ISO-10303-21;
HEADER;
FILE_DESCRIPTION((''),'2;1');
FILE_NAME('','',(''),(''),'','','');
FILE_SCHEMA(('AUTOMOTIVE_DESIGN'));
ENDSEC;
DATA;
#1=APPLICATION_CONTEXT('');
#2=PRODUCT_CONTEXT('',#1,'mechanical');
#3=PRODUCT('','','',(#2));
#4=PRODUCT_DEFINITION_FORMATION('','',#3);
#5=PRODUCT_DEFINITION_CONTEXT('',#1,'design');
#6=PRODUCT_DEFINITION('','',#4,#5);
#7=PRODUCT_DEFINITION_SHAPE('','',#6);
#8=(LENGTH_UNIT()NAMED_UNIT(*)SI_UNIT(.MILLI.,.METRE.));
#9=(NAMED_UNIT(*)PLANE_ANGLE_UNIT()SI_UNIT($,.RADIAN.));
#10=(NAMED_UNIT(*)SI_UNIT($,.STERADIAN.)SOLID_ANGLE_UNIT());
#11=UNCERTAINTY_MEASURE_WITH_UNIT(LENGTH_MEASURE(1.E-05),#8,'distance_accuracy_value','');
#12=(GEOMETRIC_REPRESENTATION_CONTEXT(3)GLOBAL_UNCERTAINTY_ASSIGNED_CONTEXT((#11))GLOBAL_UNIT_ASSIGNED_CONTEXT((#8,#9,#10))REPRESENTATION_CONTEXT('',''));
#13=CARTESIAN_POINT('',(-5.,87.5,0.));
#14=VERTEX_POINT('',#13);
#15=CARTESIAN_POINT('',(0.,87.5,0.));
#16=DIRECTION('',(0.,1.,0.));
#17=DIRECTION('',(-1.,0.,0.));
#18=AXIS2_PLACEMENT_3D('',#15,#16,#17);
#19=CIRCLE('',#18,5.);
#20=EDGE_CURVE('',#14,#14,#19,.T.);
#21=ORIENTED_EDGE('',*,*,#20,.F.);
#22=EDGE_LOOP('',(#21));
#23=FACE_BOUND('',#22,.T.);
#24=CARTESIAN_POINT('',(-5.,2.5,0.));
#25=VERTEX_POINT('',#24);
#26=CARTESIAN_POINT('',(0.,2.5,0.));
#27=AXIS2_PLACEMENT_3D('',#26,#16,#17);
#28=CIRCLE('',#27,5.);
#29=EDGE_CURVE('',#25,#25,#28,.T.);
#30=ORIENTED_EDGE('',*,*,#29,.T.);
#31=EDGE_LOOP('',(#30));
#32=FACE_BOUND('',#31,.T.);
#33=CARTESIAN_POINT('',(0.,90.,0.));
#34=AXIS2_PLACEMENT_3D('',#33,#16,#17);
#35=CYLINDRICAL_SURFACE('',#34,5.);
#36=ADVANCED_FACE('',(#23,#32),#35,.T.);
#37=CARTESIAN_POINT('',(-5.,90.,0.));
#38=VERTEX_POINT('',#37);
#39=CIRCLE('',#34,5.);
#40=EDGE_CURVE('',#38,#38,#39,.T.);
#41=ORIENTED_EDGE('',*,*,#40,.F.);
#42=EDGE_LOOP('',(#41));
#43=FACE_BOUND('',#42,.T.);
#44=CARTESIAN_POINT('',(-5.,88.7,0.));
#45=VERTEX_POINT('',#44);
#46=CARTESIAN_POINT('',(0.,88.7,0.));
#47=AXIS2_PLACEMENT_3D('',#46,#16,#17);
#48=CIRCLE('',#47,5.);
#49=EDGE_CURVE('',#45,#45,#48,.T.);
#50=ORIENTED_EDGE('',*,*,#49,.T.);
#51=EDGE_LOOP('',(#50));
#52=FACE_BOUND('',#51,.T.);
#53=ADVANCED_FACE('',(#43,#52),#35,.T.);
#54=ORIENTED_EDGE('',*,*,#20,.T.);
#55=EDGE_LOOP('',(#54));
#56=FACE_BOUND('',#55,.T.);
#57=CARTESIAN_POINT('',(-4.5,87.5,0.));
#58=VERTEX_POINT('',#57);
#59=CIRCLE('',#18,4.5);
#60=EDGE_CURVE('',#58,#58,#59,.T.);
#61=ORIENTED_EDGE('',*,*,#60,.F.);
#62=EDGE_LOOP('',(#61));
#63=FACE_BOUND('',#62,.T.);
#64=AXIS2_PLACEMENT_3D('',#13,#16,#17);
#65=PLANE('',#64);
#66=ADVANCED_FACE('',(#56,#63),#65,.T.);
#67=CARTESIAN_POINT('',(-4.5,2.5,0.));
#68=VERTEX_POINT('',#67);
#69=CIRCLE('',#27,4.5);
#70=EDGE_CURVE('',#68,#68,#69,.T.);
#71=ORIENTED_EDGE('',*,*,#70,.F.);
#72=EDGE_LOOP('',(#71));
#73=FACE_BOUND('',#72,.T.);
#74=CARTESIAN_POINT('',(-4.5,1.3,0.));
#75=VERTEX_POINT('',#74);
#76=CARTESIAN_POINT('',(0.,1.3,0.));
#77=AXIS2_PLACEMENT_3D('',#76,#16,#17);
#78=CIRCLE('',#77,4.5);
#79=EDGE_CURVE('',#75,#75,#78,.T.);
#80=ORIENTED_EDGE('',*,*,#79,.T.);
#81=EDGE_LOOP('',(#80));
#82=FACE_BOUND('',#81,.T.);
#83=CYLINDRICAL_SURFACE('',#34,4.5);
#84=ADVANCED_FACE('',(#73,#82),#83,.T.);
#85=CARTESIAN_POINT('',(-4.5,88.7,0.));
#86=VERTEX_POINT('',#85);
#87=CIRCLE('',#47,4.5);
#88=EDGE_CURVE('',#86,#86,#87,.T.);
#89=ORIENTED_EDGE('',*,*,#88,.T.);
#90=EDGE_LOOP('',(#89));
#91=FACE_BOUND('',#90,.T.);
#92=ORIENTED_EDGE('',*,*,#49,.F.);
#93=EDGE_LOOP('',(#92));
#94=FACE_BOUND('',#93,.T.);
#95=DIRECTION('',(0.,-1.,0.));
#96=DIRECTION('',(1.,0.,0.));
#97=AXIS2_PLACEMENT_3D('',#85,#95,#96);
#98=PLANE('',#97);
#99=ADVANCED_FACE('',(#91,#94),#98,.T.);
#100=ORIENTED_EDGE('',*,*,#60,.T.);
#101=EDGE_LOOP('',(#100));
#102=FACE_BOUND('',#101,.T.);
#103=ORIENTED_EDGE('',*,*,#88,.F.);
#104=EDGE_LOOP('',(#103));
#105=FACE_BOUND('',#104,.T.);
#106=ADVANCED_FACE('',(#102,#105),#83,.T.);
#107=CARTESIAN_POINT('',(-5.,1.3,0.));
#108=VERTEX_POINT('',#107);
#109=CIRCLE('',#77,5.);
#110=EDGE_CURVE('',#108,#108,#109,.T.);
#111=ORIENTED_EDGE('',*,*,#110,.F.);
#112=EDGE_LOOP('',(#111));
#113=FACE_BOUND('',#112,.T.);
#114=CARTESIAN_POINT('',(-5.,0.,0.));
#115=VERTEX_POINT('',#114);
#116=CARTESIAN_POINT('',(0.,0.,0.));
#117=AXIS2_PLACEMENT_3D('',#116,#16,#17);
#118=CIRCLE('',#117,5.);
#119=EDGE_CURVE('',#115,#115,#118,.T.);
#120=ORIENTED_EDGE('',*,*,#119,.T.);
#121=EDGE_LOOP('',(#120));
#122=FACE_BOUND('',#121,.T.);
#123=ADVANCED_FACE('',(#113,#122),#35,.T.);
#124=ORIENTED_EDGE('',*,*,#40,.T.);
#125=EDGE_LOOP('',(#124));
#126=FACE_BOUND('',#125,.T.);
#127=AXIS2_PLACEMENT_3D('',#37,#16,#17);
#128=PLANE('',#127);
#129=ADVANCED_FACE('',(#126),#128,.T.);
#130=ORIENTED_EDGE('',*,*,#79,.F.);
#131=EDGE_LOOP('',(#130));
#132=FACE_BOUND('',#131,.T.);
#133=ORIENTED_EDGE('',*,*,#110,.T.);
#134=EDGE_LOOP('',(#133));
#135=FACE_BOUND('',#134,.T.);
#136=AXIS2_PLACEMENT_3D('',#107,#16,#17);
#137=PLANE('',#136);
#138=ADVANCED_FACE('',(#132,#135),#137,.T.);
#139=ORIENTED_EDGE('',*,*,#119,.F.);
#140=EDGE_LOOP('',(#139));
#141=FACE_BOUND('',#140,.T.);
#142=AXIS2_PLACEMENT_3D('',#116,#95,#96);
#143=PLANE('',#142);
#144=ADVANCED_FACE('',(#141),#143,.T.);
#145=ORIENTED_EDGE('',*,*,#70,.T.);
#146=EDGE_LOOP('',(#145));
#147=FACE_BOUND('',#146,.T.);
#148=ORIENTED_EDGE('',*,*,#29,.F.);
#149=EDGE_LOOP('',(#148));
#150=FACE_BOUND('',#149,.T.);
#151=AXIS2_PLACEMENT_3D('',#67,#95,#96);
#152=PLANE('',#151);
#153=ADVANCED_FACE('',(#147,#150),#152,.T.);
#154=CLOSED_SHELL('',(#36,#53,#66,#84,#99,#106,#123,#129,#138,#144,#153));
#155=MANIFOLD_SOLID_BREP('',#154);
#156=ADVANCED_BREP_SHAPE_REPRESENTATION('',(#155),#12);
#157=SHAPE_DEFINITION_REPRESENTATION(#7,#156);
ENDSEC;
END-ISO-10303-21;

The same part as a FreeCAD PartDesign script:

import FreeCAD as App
import Part
import Sketcher


def add_polygon(sketch, points):
    """Adds a closed chain of lines whose ends are joined by coincident constraints."""
    first, n = sketch.GeometryCount, len(points)
    for a, b in zip(points, points[1:] + points[:1]):
        sketch.addGeometry(Part.LineSegment(App.Vector(*a, 0), App.Vector(*b, 0)), False)
    for i in range(n):
        sketch.addConstraint(Sketcher.Constraint("Coincident", first + i, 2, first + (i + 1) % n, 1))

doc = App.newDocument("Part")
body = doc.addObject("PartDesign::Body", "Body")

# Sketch on XY plane
sketch1 = doc.addObject("Sketcher::SketchObject", "Sketch")
body.addObject(sketch1)
sketch1.AttachmentSupport = (doc.XY_Plane, [""])
sketch1.MapMode = "FlatFace"
add_polygon(sketch1, [(-5, 0), (0, 0), (0, 90), (-5, 90), (-5, 88.7), (-4.5, 88.7), (-4.5, 87.5), (-5, 87.5), (-5, 2.5), (-4.5, 2.5), (-4.5, 1.3), (-5, 1.3)])  # lines 0-11
sketch1.addConstraint([
    Sketcher.Constraint("Horizontal", 0),
    Sketcher.Constraint("Vertical", 1),
    Sketcher.Constraint("Horizontal", 2),
    Sketcher.Constraint("Vertical", 3),
    Sketcher.Constraint("Horizontal", 4),
    Sketcher.Constraint("Vertical", 5),
    Sketcher.Constraint("Horizontal", 6),
    Sketcher.Constraint("Vertical", 7),
    Sketcher.Constraint("Horizontal", 8),
    Sketcher.Constraint("Vertical", 9),
    Sketcher.Constraint("Horizontal", 10),
    Sketcher.Constraint("Vertical", 11),
    Sketcher.Constraint("Coincident", 0, 2, -1, 1),
    Sketcher.Constraint("Vertical", 3, 2, 6, 2),
    Sketcher.Constraint("Vertical", 5, 2, 8, 2),
    Sketcher.Constraint("Vertical", 7, 2, 10, 2),
    Sketcher.Constraint("Equal", 5, 9),
    Sketcher.Constraint("Equal", 3, 11),
    Sketcher.Constraint("DistanceX", 0, 1, 0, 2, 5.0),
    Sketcher.Constraint("DistanceY", 1, 1, 1, 2, 90.0),
    Sketcher.Constraint("DistanceY", 7, 2, 7, 1, 85.0),
    Sketcher.Constraint("DistanceX", 4, 1, 4, 2, 0.5),
    Sketcher.Constraint("DistanceY", 3, 2, 3, 1, 1.3),
])
revolution = doc.addObject("PartDesign::Revolution", "Revolution")
body.addObject(revolution)
revolution.Profile = sketch1
revolution.ReferenceAxis = (sketch1, ["V_Axis"])
revolution.Angle = 360

doc.recompute()
